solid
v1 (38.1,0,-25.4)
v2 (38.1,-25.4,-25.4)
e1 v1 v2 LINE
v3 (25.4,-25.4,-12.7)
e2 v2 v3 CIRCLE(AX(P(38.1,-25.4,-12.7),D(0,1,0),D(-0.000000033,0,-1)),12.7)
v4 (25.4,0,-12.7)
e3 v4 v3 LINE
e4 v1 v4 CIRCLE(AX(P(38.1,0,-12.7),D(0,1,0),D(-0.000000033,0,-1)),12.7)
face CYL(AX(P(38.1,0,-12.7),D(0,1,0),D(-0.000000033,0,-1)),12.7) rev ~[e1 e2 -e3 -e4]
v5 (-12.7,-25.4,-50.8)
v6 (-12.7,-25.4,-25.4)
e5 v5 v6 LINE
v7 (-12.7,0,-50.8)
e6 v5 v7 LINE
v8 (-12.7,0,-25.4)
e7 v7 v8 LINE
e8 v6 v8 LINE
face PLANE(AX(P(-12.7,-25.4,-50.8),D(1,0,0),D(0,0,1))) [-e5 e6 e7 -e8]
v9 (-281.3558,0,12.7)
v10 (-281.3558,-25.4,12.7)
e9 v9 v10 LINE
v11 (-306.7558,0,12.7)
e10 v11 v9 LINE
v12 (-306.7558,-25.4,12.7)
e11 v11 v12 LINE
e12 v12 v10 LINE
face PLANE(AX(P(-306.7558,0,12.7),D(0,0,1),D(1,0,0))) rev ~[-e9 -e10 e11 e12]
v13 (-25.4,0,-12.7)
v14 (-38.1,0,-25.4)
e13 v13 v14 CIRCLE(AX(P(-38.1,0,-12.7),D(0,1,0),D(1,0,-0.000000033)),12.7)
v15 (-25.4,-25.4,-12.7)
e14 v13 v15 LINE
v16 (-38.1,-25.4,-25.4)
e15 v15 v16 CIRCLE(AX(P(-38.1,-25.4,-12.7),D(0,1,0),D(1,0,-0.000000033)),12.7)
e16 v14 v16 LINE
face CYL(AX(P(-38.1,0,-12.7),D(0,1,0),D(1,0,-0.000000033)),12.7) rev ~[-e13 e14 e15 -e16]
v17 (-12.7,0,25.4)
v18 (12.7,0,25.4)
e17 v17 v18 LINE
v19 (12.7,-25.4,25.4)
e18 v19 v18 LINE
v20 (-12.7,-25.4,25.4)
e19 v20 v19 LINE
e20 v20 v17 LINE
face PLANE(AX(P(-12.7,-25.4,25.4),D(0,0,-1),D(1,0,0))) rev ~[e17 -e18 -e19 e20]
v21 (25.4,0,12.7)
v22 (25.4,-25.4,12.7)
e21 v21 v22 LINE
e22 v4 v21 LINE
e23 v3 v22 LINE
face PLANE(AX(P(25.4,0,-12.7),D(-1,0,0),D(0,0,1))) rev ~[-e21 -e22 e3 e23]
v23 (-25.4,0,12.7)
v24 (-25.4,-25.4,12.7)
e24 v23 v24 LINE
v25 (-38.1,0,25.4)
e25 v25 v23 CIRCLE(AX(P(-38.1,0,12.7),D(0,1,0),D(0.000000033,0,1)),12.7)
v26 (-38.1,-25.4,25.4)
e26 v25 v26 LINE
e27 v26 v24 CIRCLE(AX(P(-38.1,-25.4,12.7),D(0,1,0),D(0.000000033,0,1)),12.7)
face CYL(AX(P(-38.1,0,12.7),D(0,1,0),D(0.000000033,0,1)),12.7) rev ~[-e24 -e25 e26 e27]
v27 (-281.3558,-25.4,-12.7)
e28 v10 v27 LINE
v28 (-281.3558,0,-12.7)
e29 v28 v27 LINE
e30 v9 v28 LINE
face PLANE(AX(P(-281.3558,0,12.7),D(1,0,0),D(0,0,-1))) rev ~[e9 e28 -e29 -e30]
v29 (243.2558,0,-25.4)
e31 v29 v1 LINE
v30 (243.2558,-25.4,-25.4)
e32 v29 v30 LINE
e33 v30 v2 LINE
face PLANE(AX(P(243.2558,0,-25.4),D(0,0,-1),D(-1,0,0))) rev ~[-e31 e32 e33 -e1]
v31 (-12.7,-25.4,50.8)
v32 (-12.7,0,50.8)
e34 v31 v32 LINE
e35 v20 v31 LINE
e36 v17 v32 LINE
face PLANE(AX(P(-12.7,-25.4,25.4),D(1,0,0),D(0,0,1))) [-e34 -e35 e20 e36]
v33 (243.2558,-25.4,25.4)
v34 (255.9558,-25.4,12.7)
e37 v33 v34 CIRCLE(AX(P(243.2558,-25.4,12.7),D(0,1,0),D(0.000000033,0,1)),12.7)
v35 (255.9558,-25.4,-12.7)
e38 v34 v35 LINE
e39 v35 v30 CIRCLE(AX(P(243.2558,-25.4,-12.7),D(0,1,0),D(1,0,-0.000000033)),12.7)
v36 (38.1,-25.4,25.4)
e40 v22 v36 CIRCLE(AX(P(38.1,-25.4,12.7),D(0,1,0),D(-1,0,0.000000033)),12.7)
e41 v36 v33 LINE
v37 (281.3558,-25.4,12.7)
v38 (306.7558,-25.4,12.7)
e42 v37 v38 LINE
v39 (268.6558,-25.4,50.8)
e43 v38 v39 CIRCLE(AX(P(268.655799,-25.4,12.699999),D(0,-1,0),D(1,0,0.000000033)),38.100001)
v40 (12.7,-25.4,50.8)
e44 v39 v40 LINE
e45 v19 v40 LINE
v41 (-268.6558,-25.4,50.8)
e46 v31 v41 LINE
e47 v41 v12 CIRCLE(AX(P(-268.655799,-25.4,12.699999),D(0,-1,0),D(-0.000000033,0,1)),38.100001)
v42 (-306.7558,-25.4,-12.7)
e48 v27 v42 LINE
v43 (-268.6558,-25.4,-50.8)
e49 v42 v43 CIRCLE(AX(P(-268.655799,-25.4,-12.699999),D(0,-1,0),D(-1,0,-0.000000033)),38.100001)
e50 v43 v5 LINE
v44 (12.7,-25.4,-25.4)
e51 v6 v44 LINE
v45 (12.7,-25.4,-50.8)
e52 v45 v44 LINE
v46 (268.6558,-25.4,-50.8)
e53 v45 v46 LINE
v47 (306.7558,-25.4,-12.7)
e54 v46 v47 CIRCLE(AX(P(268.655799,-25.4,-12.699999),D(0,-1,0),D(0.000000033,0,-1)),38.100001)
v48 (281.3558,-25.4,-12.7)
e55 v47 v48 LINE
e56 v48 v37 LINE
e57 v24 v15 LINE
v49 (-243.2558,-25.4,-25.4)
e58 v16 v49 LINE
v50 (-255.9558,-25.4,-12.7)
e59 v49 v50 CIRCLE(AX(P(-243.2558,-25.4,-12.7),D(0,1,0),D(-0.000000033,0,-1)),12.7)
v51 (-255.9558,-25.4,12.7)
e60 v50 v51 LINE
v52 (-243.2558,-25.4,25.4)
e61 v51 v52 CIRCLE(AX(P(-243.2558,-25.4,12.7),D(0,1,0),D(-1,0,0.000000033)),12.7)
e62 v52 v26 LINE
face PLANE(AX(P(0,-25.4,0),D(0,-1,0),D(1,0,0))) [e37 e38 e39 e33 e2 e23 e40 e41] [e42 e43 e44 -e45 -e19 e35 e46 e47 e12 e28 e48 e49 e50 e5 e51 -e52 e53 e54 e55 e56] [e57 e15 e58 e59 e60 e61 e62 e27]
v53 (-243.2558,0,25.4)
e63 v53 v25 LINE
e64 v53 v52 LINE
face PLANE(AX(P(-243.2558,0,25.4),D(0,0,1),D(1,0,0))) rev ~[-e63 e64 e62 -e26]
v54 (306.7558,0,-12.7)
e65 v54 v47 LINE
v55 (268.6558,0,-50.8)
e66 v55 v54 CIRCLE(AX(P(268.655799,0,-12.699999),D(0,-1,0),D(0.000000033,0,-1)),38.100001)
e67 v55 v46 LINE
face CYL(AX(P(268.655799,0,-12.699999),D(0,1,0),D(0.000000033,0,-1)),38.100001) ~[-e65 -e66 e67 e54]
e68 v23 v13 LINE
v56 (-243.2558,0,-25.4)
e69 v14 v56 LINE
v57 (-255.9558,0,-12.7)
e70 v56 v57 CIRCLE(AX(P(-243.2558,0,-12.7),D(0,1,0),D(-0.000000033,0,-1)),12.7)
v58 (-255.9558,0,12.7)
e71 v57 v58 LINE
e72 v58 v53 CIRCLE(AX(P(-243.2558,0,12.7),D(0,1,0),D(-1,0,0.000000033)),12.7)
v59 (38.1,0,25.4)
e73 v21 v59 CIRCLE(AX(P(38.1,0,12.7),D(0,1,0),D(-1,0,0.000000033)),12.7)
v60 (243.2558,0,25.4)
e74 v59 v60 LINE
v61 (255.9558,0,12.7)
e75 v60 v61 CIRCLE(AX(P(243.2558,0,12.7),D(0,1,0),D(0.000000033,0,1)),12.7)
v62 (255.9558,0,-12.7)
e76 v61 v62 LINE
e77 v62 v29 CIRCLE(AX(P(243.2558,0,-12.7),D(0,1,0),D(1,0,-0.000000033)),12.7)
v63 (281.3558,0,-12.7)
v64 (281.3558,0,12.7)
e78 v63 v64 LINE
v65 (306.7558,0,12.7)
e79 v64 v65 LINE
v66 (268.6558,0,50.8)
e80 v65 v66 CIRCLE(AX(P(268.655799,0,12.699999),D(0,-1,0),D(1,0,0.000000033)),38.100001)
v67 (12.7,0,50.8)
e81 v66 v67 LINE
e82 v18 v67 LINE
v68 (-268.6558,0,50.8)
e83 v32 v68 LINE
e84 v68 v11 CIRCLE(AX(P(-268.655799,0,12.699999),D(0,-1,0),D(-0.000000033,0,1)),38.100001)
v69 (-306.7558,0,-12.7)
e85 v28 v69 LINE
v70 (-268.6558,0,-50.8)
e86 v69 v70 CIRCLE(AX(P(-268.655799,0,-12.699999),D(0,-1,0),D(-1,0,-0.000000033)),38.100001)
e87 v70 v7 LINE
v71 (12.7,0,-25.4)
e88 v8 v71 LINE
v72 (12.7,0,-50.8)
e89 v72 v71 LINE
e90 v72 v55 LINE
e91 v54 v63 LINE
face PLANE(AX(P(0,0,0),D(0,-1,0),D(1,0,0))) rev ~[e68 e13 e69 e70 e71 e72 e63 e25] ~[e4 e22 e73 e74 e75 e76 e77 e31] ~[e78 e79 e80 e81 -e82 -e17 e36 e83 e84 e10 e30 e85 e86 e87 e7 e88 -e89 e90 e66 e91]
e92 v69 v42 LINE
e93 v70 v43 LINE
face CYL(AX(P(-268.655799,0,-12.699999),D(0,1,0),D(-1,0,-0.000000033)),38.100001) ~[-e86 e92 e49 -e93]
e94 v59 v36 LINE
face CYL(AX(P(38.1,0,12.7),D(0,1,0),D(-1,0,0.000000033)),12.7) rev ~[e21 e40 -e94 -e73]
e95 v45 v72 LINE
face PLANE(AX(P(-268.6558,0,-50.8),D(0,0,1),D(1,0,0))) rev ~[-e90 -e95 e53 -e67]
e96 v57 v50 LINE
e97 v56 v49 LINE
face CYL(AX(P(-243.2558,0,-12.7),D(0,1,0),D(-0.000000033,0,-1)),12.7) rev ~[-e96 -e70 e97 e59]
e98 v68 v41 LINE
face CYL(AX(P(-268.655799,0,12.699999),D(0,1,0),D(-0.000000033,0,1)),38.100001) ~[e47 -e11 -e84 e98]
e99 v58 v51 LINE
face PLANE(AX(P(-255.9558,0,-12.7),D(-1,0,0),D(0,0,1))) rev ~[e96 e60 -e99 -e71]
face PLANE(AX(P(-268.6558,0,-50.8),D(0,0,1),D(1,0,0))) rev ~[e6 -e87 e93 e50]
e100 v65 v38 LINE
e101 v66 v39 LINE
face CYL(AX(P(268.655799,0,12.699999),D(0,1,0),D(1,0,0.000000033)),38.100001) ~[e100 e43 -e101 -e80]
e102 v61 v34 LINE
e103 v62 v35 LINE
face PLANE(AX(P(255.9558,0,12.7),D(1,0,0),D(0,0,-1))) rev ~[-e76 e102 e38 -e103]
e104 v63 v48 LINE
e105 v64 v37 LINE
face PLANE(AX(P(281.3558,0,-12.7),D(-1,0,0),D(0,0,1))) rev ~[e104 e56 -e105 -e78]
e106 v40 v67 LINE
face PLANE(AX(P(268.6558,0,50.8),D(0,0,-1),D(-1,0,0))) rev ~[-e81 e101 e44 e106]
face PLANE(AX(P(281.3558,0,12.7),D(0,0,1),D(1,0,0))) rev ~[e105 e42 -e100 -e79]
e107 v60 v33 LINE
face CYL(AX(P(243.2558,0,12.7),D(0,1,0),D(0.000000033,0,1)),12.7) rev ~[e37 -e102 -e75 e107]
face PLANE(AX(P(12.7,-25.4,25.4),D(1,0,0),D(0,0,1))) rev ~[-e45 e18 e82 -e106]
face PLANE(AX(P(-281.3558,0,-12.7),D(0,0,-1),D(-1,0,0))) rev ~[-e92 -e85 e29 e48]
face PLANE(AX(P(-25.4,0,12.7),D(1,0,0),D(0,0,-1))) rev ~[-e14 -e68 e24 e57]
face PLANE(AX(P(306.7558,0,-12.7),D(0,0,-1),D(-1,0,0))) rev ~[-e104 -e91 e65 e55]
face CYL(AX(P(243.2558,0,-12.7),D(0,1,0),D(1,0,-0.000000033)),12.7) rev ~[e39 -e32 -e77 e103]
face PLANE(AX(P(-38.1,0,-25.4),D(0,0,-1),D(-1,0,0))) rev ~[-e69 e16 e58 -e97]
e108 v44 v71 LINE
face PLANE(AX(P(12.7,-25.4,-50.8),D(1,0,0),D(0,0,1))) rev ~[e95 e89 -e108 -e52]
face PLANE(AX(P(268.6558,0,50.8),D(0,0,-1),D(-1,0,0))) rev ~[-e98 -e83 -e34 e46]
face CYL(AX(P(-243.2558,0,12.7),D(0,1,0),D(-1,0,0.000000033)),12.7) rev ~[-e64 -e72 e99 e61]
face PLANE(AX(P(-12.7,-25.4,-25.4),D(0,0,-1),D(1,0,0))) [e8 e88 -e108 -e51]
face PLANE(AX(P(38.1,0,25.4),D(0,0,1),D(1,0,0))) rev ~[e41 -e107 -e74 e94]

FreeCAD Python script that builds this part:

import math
import FreeCAD as App
import Part
import Sketcher

V = App.Vector
Q = App.Units.Quantity


def add_polygon(sketch, points):
    """Adds a closed chain of lines whose ends are joined by coincident constraints."""
    first, n = sketch.GeometryCount, len(points)
    for a, b in zip(points, points[1:] + points[:1]):
        sketch.addGeometry(Part.LineSegment(App.Vector(*a, 0), App.Vector(*b, 0)), False)
    for i in range(n):
        sketch.addConstraint(Sketcher.Constraint("Coincident", first + i, 2, first + (i + 1) % n, 1))

doc = App.newDocument("Part")
body = doc.addObject("PartDesign::Body", "Body")

# Sketch on XZ plane
sketch1 = body.newObject("Sketcher::SketchObject", "Sketch")
sketch1.AttachmentSupport = (doc.getObject("XZ_Plane"), [""])
sketch1.MapMode = "FlatFace"
sketch1.addGeometry(Part.LineSegment(V(-307, 13, 0), V(-281, 13, 0)), False)
sketch1.addGeometry(Part.LineSegment(V(-281, 13, 0), V(-281, -13, 0)), False)
sketch1.addGeometry(Part.LineSegment(V(-281, -13, 0), V(-307, -13, 0)), False)
sketch1.addGeometry(Part.ArcOfCircle(Part.Circle(V(-269, -13, 0), V(0, 0, 1), 38), math.radians(-180), math.radians(-90)), False)
sketch1.addGeometry(Part.LineSegment(V(-269, -51, 0), V(269, -51, 0)), False)
sketch1.addGeometry(Part.ArcOfCircle(Part.Circle(V(269, -13, 0), V(0, 0, 1), 38), math.radians(-90), math.radians(0)), False)
sketch1.addGeometry(Part.LineSegment(V(307, -13, 0), V(281, -13, 0)), False)
sketch1.addGeometry(Part.LineSegment(V(281, -13, 0), V(281, 13, 0)), False)
sketch1.addGeometry(Part.LineSegment(V(281, 13, 0), V(307, 13, 0)), False)
sketch1.addGeometry(Part.ArcOfCircle(Part.Circle(V(269, 13, 0), V(0, 0, 1), 38), math.radians(0), math.radians(90)), False)
sketch1.addGeometry(Part.LineSegment(V(269, 51, 0), V(-269, 51, 0)), False)
sketch1.addGeometry(Part.ArcOfCircle(Part.Circle(V(-269, 13, 0), V(0, 0, 1), 38), math.radians(90), math.radians(180)), False)
sketch1.addGeometry(Part.ArcOfCircle(Part.Circle(V(-38, -13, 0), V(0, 0, 1), 13), math.radians(-90), math.radians(0)), False)
sketch1.addGeometry(Part.LineSegment(V(-38, -25, 0), V(-243, -25, 0)), False)
sketch1.addGeometry(Part.ArcOfCircle(Part.Circle(V(-243, -13, 0), V(0, 0, 1), 13), math.radians(-180), math.radians(-90)), False)
sketch1.addGeometry(Part.LineSegment(V(-256, -13, 0), V(-256, 13, 0)), False)
sketch1.addGeometry(Part.ArcOfCircle(Part.Circle(V(-243, 13, 0), V(0, 0, 1), 13), math.radians(90), math.radians(180)), False)
sketch1.addGeometry(Part.LineSegment(V(-243, 25, 0), V(-38, 25, 0)), False)
sketch1.addGeometry(Part.ArcOfCircle(Part.Circle(V(-38, 13, 0), V(0, 0, 1), 13), math.radians(0), math.radians(90)), False)
sketch1.addGeometry(Part.LineSegment(V(-25, 13, 0), V(-25, -13, 0)), False)
sketch1.addGeometry(Part.LineSegment(V(256, 13, 0), V(256, -13, 0)), False)
sketch1.addGeometry(Part.ArcOfCircle(Part.Circle(V(243, -13, 0), V(0, 0, 1), 13), math.radians(-90), math.radians(0)), False)
sketch1.addGeometry(Part.LineSegment(V(243, -25, 0), V(38, -25, 0)), False)
sketch1.addGeometry(Part.ArcOfCircle(Part.Circle(V(38, -13, 0), V(0, 0, 1), 13), math.radians(-180), math.radians(-90)), False)
sketch1.addGeometry(Part.LineSegment(V(25, -13, 0), V(25, 13, 0)), False)
sketch1.addGeometry(Part.ArcOfCircle(Part.Circle(V(38, 13, 0), V(0, 0, 1), 13), math.radians(90), math.radians(180)), False)
sketch1.addGeometry(Part.LineSegment(V(38, 25, 0), V(243, 25, 0)), False)
sketch1.addGeometry(Part.ArcOfCircle(Part.Circle(V(243, 13, 0), V(0, 0, 1), 13), math.radians(0), math.radians(90)), False)
sketch1.addConstraint(Sketcher.Constraint("Coincident", 0, 2, 1, 1))
sketch1.addConstraint(Sketcher.Constraint("Coincident", 1, 2, 2, 1))
sketch1.addConstraint(Sketcher.Constraint("Coincident", 2, 2, 3, 1))
sketch1.addConstraint(Sketcher.Constraint("Tangent", 3, 2, 4, 1))
sketch1.addConstraint(Sketcher.Constraint("Tangent", 4, 2, 5, 1))
sketch1.addConstraint(Sketcher.Constraint("Coincident", 5, 2, 6, 1))
sketch1.addConstraint(Sketcher.Constraint("Coincident", 6, 2, 7, 1))
sketch1.addConstraint(Sketcher.Constraint("Coincident", 7, 2, 8, 1))
sketch1.addConstraint(Sketcher.Constraint("Coincident", 8, 2, 9, 1))
sketch1.addConstraint(Sketcher.Constraint("Tangent", 9, 2, 10, 1))
sketch1.addConstraint(Sketcher.Constraint("Tangent", 10, 2, 11, 1))
sketch1.addConstraint(Sketcher.Constraint("Coincident", 11, 2, 0, 1))
sketch1.addConstraint(Sketcher.Constraint("Tangent", 12, 1, 13, 1))
sketch1.addConstraint(Sketcher.Constraint("Tangent", 13, 2, 14, 2))
sketch1.addConstraint(Sketcher.Constraint("Tangent", 14, 1, 15, 1))
sketch1.addConstraint(Sketcher.Constraint("Tangent", 15, 2, 16, 2))
sketch1.addConstraint(Sketcher.Constraint("Tangent", 16, 1, 17, 1))
sketch1.addConstraint(Sketcher.Constraint("Tangent", 17, 2, 18, 2))
sketch1.addConstraint(Sketcher.Constraint("Tangent", 18, 1, 19, 1))
sketch1.addConstraint(Sketcher.Constraint("Tangent", 19, 2, 12, 2))
sketch1.addConstraint(Sketcher.Constraint("Tangent", 20, 2, 21, 2))
sketch1.addConstraint(Sketcher.Constraint("Tangent", 21, 1, 22, 1))
sketch1.addConstraint(Sketcher.Constraint("Tangent", 22, 2, 23, 2))
sketch1.addConstraint(Sketcher.Constraint("Tangent", 23, 1, 24, 1))
sketch1.addConstraint(Sketcher.Constraint("Tangent", 24, 2, 25, 2))
sketch1.addConstraint(Sketcher.Constraint("Tangent", 25, 1, 26, 1))
sketch1.addConstraint(Sketcher.Constraint("Tangent", 26, 2, 27, 2))
sketch1.addConstraint(Sketcher.Constraint("Tangent", 27, 1, 20, 1))
sketch1.addConstraint(Sketcher.Constraint("Horizontal", 0))
sketch1.addConstraint(Sketcher.Constraint("Vertical", 1))
sketch1.addConstraint(Sketcher.Constraint("Horizontal", 2))
sketch1.addConstraint(Sketcher.Constraint("Horizontal", 4))
sketch1.addConstraint(Sketcher.Constraint("Horizontal", 6))
sketch1.addConstraint(Sketcher.Constraint("Vertical", 7))
sketch1.addConstraint(Sketcher.Constraint("Horizontal", 8))
sketch1.addConstraint(Sketcher.Constraint("Horizontal", 10))
sketch1.addConstraint(Sketcher.Constraint("Horizontal", 13))
sketch1.addConstraint(Sketcher.Constraint("Vertical", 15))
sketch1.addConstraint(Sketcher.Constraint("Horizontal", 17))
sketch1.addConstraint(Sketcher.Constraint("Vertical", 19))
sketch1.addConstraint(Sketcher.Constraint("Vertical", 20))
sketch1.addConstraint(Sketcher.Constraint("Horizontal", 22))
sketch1.addConstraint(Sketcher.Constraint("Vertical", 24))
sketch1.addConstraint(Sketcher.Constraint("Horizontal", 26))
sketch1.addConstraint(Sketcher.Constraint("Equal", 3, 5))
sketch1.addConstraint(Sketcher.Constraint("Equal", 5, 9))
sketch1.addConstraint(Sketcher.Constraint("Equal", 9, 11))
sketch1.addConstraint(Sketcher.Constraint("Equal", 12, 14))
sketch1.addConstraint(Sketcher.Constraint("Equal", 14, 16))
sketch1.addConstraint(Sketcher.Constraint("Equal", 16, 18))
sketch1.addConstraint(Sketcher.Constraint("Equal", 18, 21))
sketch1.addConstraint(Sketcher.Constraint("Equal", 21, 23))
sketch1.addConstraint(Sketcher.Constraint("Equal", 23, 25))
sketch1.addConstraint(Sketcher.Constraint("Equal", 25, 27))
sketch1.addConstraint(Sketcher.Constraint("Symmetric", 3, 3, 9, 3, -1, 1))
sketch1.addConstraint(Sketcher.Constraint("Symmetric", 16, 3, 21, 3, -1, 1))
sketch1.addConstraint(Sketcher.Constraint("Symmetric", 12, 3, 25, 3, -1, 1))
sketch1.addConstraint(Sketcher.Constraint("Symmetric", 0, 2, 6, 2, -1, 1))
sketch1.addConstraint(Sketcher.Constraint("Symmetric", 2, 2, 5, 2, -2))
sketch1.addConstraint(Sketcher.Constraint("Symmetric", 8, 2, 11, 2, -2))
sketch1.addConstraint(Sketcher.Constraint("Horizontal", 5, 3, 12, 3))
sketch1.addConstraint(Sketcher.Constraint("Horizontal", 11, 3, 16, 3))
sketch1.addConstraint(Sketcher.Constraint("Horizontal", 27, 3, 0, 2))
sketch1.addConstraint(Sketcher.Constraint("Equal", 8, 1))
sketch1.addConstraint(Sketcher.Constraint("Radius", 3, Q("1.5 in")))
sketch1.addConstraint(Sketcher.Constraint("Radius", 12, Q("0.5 in")))
sketch1.addConstraint(Sketcher.Constraint("DistanceX", 0, 1, 0, 2, Q("1 in")))
sketch1.addConstraint(Sketcher.Constraint("DistanceX", 18, 1, -1, 1, Q("1 in")))
sketch1.addConstraint(Sketcher.Constraint("DistanceX", 3, 3, 14, 3, Q("1 in")))
sketch1.addConstraint(Sketcher.Constraint("DistanceX", 4, 1, 4, 2, Q("21.154 in")))
pad1 = body.newObject("PartDesign::Pad", "Pad")
pad1.Profile = sketch1
pad1.Length = Q("1 in")

# Sketch on XZ plane
sketch2 = body.newObject("Sketcher::SketchObject", "Sketch001")
sketch2.AttachmentSupport = (doc.getObject("XZ_Plane"), [""])
sketch2.MapMode = "FlatFace"
sketch2.AttachmentOffset = App.Placement(V(0, 0, 1 * 25.4), App.Rotation())
add_polygon(sketch2, [(-13, 51), (-13, 25), (13, 25), (13, 51)])  # lines 0-3
add_polygon(sketch2, [(-13, -25), (-13, -51), (13, -51), (13, -25)])  # lines 4-7
sketch2.addConstraint(Sketcher.Constraint("Vertical", 0))
sketch2.addConstraint(Sketcher.Constraint("Horizontal", 1))
sketch2.addConstraint(Sketcher.Constraint("Vertical", 2))
sketch2.addConstraint(Sketcher.Constraint("Horizontal", 3))
sketch2.addConstraint(Sketcher.Constraint("Vertical", 4))
sketch2.addConstraint(Sketcher.Constraint("Horizontal", 5))
sketch2.addConstraint(Sketcher.Constraint("Vertical", 6))
sketch2.addConstraint(Sketcher.Constraint("Horizontal", 7))
sketch2.addConstraint(Sketcher.Constraint("Symmetric", 2, 2, 4, 2, -1, 1))
sketch2.addConstraint(Sketcher.Constraint("Symmetric", 0, 2, 6, 2, -1, 1))
sketch2.addConstraint(Sketcher.Constraint("Vertical", 3, 2, 4, 2))
sketch2.addConstraint(Sketcher.Constraint("Equal", 7, 0))
sketch2.addConstraint(Sketcher.Constraint("DistanceX", 1, 1, 1, 2, Q("1 in")))
sketch2.addConstraint(Sketcher.Constraint("DistanceY", -1, 1, 0, 2, Q("1 in")))
pocket1 = body.newObject("PartDesign::Pocket", "Pocket")
pocket1.Profile = sketch2
pocket1.Length = Q("1 in")

doc.recompute()
